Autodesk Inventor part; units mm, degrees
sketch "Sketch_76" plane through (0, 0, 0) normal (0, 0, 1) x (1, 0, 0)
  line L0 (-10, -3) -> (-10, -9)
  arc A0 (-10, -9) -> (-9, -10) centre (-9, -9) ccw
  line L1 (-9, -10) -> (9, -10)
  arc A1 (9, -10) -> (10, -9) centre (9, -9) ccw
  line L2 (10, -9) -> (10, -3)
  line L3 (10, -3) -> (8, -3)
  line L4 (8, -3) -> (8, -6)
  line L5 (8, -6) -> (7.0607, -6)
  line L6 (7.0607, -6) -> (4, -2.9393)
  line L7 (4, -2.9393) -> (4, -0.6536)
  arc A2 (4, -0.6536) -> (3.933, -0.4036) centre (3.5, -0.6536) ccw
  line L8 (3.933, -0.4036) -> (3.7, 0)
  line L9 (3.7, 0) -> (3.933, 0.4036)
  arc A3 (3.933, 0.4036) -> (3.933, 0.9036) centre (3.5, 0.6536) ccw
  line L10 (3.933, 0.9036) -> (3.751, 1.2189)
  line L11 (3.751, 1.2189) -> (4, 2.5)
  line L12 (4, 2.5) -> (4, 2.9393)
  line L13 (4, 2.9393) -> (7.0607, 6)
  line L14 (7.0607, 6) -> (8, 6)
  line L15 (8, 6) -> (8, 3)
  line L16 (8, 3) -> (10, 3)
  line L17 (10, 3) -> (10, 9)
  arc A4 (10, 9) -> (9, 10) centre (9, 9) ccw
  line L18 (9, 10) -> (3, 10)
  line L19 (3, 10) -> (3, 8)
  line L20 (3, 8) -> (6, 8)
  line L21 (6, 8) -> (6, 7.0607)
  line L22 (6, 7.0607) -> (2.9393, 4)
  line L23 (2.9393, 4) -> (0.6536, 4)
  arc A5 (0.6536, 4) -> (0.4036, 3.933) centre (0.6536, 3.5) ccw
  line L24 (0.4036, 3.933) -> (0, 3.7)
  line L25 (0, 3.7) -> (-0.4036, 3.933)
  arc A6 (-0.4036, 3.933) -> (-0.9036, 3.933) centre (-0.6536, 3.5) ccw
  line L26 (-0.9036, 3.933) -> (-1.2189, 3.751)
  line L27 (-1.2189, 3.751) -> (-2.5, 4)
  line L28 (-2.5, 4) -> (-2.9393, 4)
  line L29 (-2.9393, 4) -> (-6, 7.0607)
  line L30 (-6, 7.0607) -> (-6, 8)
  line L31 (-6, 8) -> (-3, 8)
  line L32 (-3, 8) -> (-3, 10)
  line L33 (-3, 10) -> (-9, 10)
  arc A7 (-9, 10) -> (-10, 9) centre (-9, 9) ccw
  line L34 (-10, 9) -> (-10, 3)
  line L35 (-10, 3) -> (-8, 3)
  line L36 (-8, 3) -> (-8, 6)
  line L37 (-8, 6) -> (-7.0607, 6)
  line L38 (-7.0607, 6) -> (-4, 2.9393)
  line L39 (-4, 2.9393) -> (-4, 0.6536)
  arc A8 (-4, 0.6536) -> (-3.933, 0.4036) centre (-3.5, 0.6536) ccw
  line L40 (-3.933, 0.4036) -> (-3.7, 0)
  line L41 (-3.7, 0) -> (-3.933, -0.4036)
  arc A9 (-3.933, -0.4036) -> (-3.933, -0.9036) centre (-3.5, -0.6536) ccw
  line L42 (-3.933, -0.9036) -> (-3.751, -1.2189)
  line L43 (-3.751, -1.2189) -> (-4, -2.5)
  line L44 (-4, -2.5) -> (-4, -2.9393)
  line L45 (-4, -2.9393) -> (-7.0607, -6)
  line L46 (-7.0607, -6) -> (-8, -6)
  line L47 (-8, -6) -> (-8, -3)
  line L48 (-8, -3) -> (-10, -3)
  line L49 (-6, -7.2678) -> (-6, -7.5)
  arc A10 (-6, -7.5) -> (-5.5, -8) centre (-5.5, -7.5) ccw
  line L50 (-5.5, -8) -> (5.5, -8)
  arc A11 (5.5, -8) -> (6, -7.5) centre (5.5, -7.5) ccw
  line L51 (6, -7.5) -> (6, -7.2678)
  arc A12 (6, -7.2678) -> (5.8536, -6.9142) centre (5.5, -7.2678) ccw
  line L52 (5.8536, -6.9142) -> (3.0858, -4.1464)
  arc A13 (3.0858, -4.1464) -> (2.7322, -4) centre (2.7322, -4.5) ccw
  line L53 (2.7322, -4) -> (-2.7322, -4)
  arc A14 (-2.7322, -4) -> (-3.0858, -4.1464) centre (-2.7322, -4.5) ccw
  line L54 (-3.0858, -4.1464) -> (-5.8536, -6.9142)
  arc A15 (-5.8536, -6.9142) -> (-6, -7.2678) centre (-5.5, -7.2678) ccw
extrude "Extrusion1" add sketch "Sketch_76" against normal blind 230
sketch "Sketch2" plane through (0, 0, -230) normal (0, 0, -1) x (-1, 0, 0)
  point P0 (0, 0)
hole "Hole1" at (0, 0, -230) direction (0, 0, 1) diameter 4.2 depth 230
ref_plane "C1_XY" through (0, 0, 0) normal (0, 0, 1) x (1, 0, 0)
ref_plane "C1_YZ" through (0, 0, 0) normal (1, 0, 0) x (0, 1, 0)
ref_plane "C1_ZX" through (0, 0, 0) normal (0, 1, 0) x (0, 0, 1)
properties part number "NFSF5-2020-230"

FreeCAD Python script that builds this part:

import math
import FreeCAD as App
import Part
import Sketcher
Q = App.Units.Quantity

doc = App.newDocument("Part")
body = doc.addObject("PartDesign::Body", "Body")

sketch1 = body.newObject("Sketcher::SketchObject", "Sketch")
sketch1.AttachmentSupport = (doc.getObject("XY_Plane"), [""])
sketch1.MapMode = "FlatFace"
sketch1.addGeometry([
    Part.LineSegment(App.Vector(-8, -3, 0), App.Vector(-10, -3, 0)),
    Part.LineSegment(App.Vector(-10, -3, 0), App.Vector(-10, -9, 0)),
    Part.ArcOfCircle(Part.Circle(App.Vector(-9, -9, 0), App.Vector(0, 0, 1), 1), math.radians(180), math.radians(270)),
    Part.LineSegment(App.Vector(-9, -10, 0), App.Vector(9, -10, 0)),
    Part.ArcOfCircle(Part.Circle(App.Vector(9, -9, 0), App.Vector(0, 0, 1), 1), math.radians(-90), math.radians(0)),
    Part.LineSegment(App.Vector(10, -9, 0), App.Vector(10, -3, 0)),
    Part.LineSegment(App.Vector(10, -3, 0), App.Vector(8, -3, 0)),
    Part.LineSegment(App.Vector(8, -3, 0), App.Vector(8, -6, 0)),
    Part.LineSegment(App.Vector(8, -6, 0), App.Vector(7.06, -6, 0)),
    Part.LineSegment(App.Vector(7.06, -6, 0), App.Vector(4, -2.94, 0)),
    Part.LineSegment(App.Vector(4, -2.94, 0), App.Vector(4, -0.65, 0)),
    Part.ArcOfCircle(Part.Circle(App.Vector(3.5, -0.65, 0), App.Vector(0, 0, 1), 0.5), math.radians(0), math.radians(30)),
    Part.LineSegment(App.Vector(3.93, -0.4, 0), App.Vector(3.7, 0, 0)),
    Part.LineSegment(App.Vector(3.7, 0, 0), App.Vector(3.93, 0.4, 0)),
    Part.ArcOfCircle(Part.Circle(App.Vector(3.5, 0.65, 0), App.Vector(0, 0, 1), 0.5), math.radians(-30), math.radians(30)),
    Part.LineSegment(App.Vector(3.93, 0.9, 0), App.Vector(3.75, 1.22, 0)),
    Part.LineSegment(App.Vector(3.75, 1.22, 0), App.Vector(4, 2.5, 0)),
    Part.LineSegment(App.Vector(4, 2.5, 0), App.Vector(4, 2.94, 0)),
    Part.LineSegment(App.Vector(4, 2.94, 0), App.Vector(7.06, 6, 0)),
    Part.LineSegment(App.Vector(7.06, 6, 0), App.Vector(8, 6, 0)),
    Part.LineSegment(App.Vector(8, 6, 0), App.Vector(8, 3, 0)),
    Part.LineSegment(App.Vector(8, 3, 0), App.Vector(10, 3, 0)),
    Part.LineSegment(App.Vector(10, 3, 0), App.Vector(10, 9, 0)),
    Part.ArcOfCircle(Part.Circle(App.Vector(9, 9, 0), App.Vector(0, 0, 1), 1), math.radians(0), math.radians(90)),
    Part.LineSegment(App.Vector(9, 10, 0), App.Vector(3, 10, 0)),
    Part.LineSegment(App.Vector(3, 10, 0), App.Vector(3, 8, 0)),
    Part.LineSegment(App.Vector(3, 8, 0), App.Vector(6, 8, 0)),
    Part.LineSegment(App.Vector(6, 8, 0), App.Vector(6, 7.06, 0)),
    Part.LineSegment(App.Vector(6, 7.06, 0), App.Vector(2.94, 4, 0)),
    Part.LineSegment(App.Vector(2.94, 4, 0), App.Vector(0.65, 4, 0)),
    Part.ArcOfCircle(Part.Circle(App.Vector(0.65, 3.5, 0), App.Vector(0, 0, 1), 0.5), math.radians(90), math.radians(120)),
    Part.LineSegment(App.Vector(0.4, 3.93, 0), App.Vector(0, 3.7, 0)),
    Part.LineSegment(App.Vector(0, 3.7, 0), App.Vector(-0.4, 3.93, 0)),
    Part.ArcOfCircle(Part.Circle(App.Vector(-0.65, 3.5, 0), App.Vector(0, 0, 1), 0.5), math.radians(60), math.radians(120)),
    Part.LineSegment(App.Vector(-0.9, 3.93, 0), App.Vector(-1.22, 3.75, 0)),
    Part.LineSegment(App.Vector(-1.22, 3.75, 0), App.Vector(-2.5, 4, 0)),
    Part.LineSegment(App.Vector(-2.5, 4, 0), App.Vector(-2.94, 4, 0)),
    Part.LineSegment(App.Vector(-2.94, 4, 0), App.Vector(-6, 7.06, 0)),
    Part.LineSegment(App.Vector(-6, 7.06, 0), App.Vector(-6, 8, 0)),
    Part.LineSegment(App.Vector(-6, 8, 0), App.Vector(-3, 8, 0)),
    Part.LineSegment(App.Vector(-3, 8, 0), App.Vector(-3, 10, 0)),
    Part.LineSegment(App.Vector(-3, 10, 0), App.Vector(-9, 10, 0)),
    Part.ArcOfCircle(Part.Circle(App.Vector(-9, 9, 0), App.Vector(0, 0, 1), 1), math.radians(90), math.radians(180)),
    Part.LineSegment(App.Vector(-10, 9, 0), App.Vector(-10, 3, 0)),
    Part.LineSegment(App.Vector(-10, 3, 0), App.Vector(-8, 3, 0)),
    Part.LineSegment(App.Vector(-8, 3, 0), App.Vector(-8, 6, 0)),
    Part.LineSegment(App.Vector(-8, 6, 0), App.Vector(-7.06, 6, 0)),
    Part.LineSegment(App.Vector(-7.06, 6, 0), App.Vector(-4, 2.94, 0)),
    Part.LineSegment(App.Vector(-4, 2.94, 0), App.Vector(-4, 0.65, 0)),
    Part.ArcOfCircle(Part.Circle(App.Vector(-3.5, 0.65, 0), App.Vector(0, 0, 1), 0.5), math.radians(180), math.radians(210)),
    Part.LineSegment(App.Vector(-3.93, 0.4, 0), App.Vector(-3.7, 0, 0)),
    Part.LineSegment(App.Vector(-3.7, 0, 0), App.Vector(-3.93, -0.4, 0)),
    Part.ArcOfCircle(Part.Circle(App.Vector(-3.5, -0.65, 0), App.Vector(0, 0, 1), 0.5), math.radians(150), math.radians(210)),
    Part.LineSegment(App.Vector(-3.93, -0.9, 0), App.Vector(-3.75, -1.22, 0)),
    Part.LineSegment(App.Vector(-3.75, -1.22, 0), App.Vector(-4, -2.5, 0)),
    Part.LineSegment(App.Vector(-4, -2.5, 0), App.Vector(-4, -2.94, 0)),
    Part.LineSegment(App.Vector(-4, -2.94, 0), App.Vector(-7.06, -6, 0)),
    Part.LineSegment(App.Vector(-7.06, -6, 0), App.Vector(-8, -6, 0)),
    Part.LineSegment(App.Vector(-8, -6, 0), App.Vector(-8, -3, 0)),
    Part.LineSegment(App.Vector(-6, -7.5, 0), App.Vector(-6, -7.27, 0)),
    Part.ArcOfCircle(Part.Circle(App.Vector(-5.5, -7.27, 0), App.Vector(0, 0, 1), 0.5), math.radians(135), math.radians(180)),
    Part.LineSegment(App.Vector(-5.85, -6.91, 0), App.Vector(-3.09, -4.15, 0)),
    Part.ArcOfCircle(Part.Circle(App.Vector(-2.73, -4.5, 0), App.Vector(0, 0, 1), 0.5), math.radians(90), math.radians(135)),
    Part.LineSegment(App.Vector(-2.73, -4, 0), App.Vector(2.73, -4, 0)),
    Part.ArcOfCircle(Part.Circle(App.Vector(2.73, -4.5, 0), App.Vector(0, 0, 1), 0.5), math.radians(45), math.radians(90)),
    Part.LineSegment(App.Vector(3.09, -4.15, 0), App.Vector(5.85, -6.91, 0)),
    Part.ArcOfCircle(Part.Circle(App.Vector(5.5, -7.27, 0), App.Vector(0, 0, 1), 0.5), math.radians(0), math.radians(45)),
    Part.LineSegment(App.Vector(6, -7.27, 0), App.Vector(6, -7.5, 0)),
    Part.ArcOfCircle(Part.Circle(App.Vector(5.5, -7.5, 0), App.Vector(0, 0, 1), 0.5), math.radians(-90), math.radians(0)),
    Part.LineSegment(App.Vector(5.5, -8, 0), App.Vector(-5.5, -8, 0)),
    Part.ArcOfCircle(Part.Circle(App.Vector(-5.5, -7.5, 0), App.Vector(0, 0, 1), 0.5), math.radians(180), math.radians(270)),
], False)
sketch1.addConstraint([
    Sketcher.Constraint("Coincident", 0, 2, 1, 1),
    Sketcher.Constraint("Tangent", 1, 2, 2, 1),
    Sketcher.Constraint("Tangent", 2, 2, 3, 1),
    Sketcher.Constraint("Tangent", 3, 2, 4, 1),
    Sketcher.Constraint("Tangent", 4, 2, 5, 1),
    Sketcher.Constraint("Coincident", 5, 2, 6, 1),
    Sketcher.Constraint("Coincident", 6, 2, 7, 1),
    Sketcher.Constraint("Coincident", 7, 2, 8, 1),
    Sketcher.Constraint("Coincident", 8, 2, 9, 1),
    Sketcher.Constraint("Coincident", 9, 2, 10, 1),
    Sketcher.Constraint("Tangent", 10, 2, 11, 1),
    Sketcher.Constraint("Tangent", 11, 2, 12, 1),
    Sketcher.Constraint("Coincident", 12, 2, 13, 1),
    Sketcher.Constraint("Tangent", 13, 2, 14, 1),
    Sketcher.Constraint("Tangent", 14, 2, 15, 1),
    Sketcher.Constraint("Coincident", 15, 2, 16, 1),
    Sketcher.Constraint("Coincident", 16, 2, 17, 1),
    Sketcher.Constraint("Coincident", 17, 2, 18, 1),
    Sketcher.Constraint("Coincident", 18, 2, 19, 1),
    Sketcher.Constraint("Coincident", 19, 2, 20, 1),
    Sketcher.Constraint("Coincident", 20, 2, 21, 1),
    Sketcher.Constraint("Coincident", 21, 2, 22, 1),
    Sketcher.Constraint("Tangent", 22, 2, 23, 1),
    Sketcher.Constraint("Tangent", 23, 2, 24, 1),
    Sketcher.Constraint("Coincident", 24, 2, 25, 1),
    Sketcher.Constraint("Coincident", 25, 2, 26, 1),
    Sketcher.Constraint("Coincident", 26, 2, 27, 1),
    Sketcher.Constraint("Coincident", 27, 2, 28, 1),
    Sketcher.Constraint("Coincident", 28, 2, 29, 1),
    Sketcher.Constraint("Tangent", 29, 2, 30, 1),
    Sketcher.Constraint("Tangent", 30, 2, 31, 1),
    Sketcher.Constraint("Coincident", 31, 2, 32, 1),
    Sketcher.Constraint("Tangent", 32, 2, 33, 1),
    Sketcher.Constraint("Tangent", 33, 2, 34, 1),
    Sketcher.Constraint("Coincident", 34, 2, 35, 1),
    Sketcher.Constraint("Coincident", 35, 2, 36, 1),
    Sketcher.Constraint("Coincident", 36, 2, 37, 1),
    Sketcher.Constraint("Coincident", 37, 2, 38, 1),
    Sketcher.Constraint("Coincident", 38, 2, 39, 1),
    Sketcher.Constraint("Coincident", 39, 2, 40, 1),
    Sketcher.Constraint("Coincident", 40, 2, 41, 1),
    Sketcher.Constraint("Tangent", 41, 2, 42, 1),
    Sketcher.Constraint("Tangent", 42, 2, 43, 1),
    Sketcher.Constraint("Coincident", 43, 2, 44, 1),
    Sketcher.Constraint("Coincident", 44, 2, 45, 1),
    Sketcher.Constraint("Coincident", 45, 2, 46, 1),
    Sketcher.Constraint("Coincident", 46, 2, 47, 1),
    Sketcher.Constraint("Coincident", 47, 2, 48, 1),
    Sketcher.Constraint("Tangent", 48, 2, 49, 1),
    Sketcher.Constraint("Tangent", 49, 2, 50, 1),
    Sketcher.Constraint("Coincident", 50, 2, 51, 1),
    Sketcher.Constraint("Tangent", 51, 2, 52, 1),
    Sketcher.Constraint("Tangent", 52, 2, 53, 1),
    Sketcher.Constraint("Coincident", 53, 2, 54, 1),
    Sketcher.Constraint("Coincident", 54, 2, 55, 1),
    Sketcher.Constraint("Coincident", 55, 2, 56, 1),
    Sketcher.Constraint("Coincident", 56, 2, 57, 1),
    Sketcher.Constraint("Coincident", 57, 2, 58, 1),
    Sketcher.Constraint("Coincident", 58, 2, 0, 1),
    Sketcher.Constraint("Tangent", 59, 2, 60, 2),
    Sketcher.Constraint("Tangent", 60, 1, 61, 1),
    Sketcher.Constraint("Tangent", 61, 2, 62, 2),
    Sketcher.Constraint("Tangent", 62, 1, 63, 1),
    Sketcher.Constraint("Tangent", 63, 2, 64, 2),
    Sketcher.Constraint("Tangent", 64, 1, 65, 1),
    Sketcher.Constraint("Tangent", 65, 2, 66, 2),
    Sketcher.Constraint("Tangent", 66, 1, 67, 1),
    Sketcher.Constraint("Tangent", 67, 2, 68, 2),
    Sketcher.Constraint("Tangent", 68, 1, 69, 1),
    Sketcher.Constraint("Tangent", 69, 2, 70, 2),
    Sketcher.Constraint("Tangent", 70, 1, 59, 1),
    Sketcher.Constraint("Horizontal", 0),
    Sketcher.Constraint("Vertical", 1),
    Sketcher.Constraint("Horizontal", 3),
    Sketcher.Constraint("Vertical", 5),
    Sketcher.Constraint("Horizontal", 6),
    Sketcher.Constraint("Vertical", 7),
    Sketcher.Constraint("Horizontal", 8),
    Sketcher.Constraint("Vertical", 10),
    Sketcher.Constraint("Vertical", 17),
    Sketcher.Constraint("Horizontal", 19),
    Sketcher.Constraint("Vertical", 20),
    Sketcher.Constraint("Horizontal", 21),
    Sketcher.Constraint("Vertical", 22),
    Sketcher.Constraint("Horizontal", 24),
    Sketcher.Constraint("Vertical", 25),
    Sketcher.Constraint("Horizontal", 26),
    Sketcher.Constraint("Vertical", 27),
    Sketcher.Constraint("Horizontal", 29),
    Sketcher.Constraint("Horizontal", 36),
    Sketcher.Constraint("Vertical", 38),
    Sketcher.Constraint("Horizontal", 39),
    Sketcher.Constraint("Vertical", 40),
    Sketcher.Constraint("Horizontal", 41),
    Sketcher.Constraint("Vertical", 43),
    Sketcher.Constraint("Horizontal", 44),
    Sketcher.Constraint("Vertical", 45),
    Sketcher.Constraint("Horizontal", 46),
    Sketcher.Constraint("Vertical", 48),
    Sketcher.Constraint("Vertical", 55),
    Sketcher.Constraint("Horizontal", 57),
    Sketcher.Constraint("Vertical", 58),
    Sketcher.Constraint("Vertical", 59),
    Sketcher.Constraint("Horizontal", 63),
    Sketcher.Constraint("Vertical", 67),
    Sketcher.Constraint("Horizontal", 69),
    Sketcher.Constraint("Equal", 2, 4),
    Sketcher.Constraint("Equal", 11, 14),
    Sketcher.Constraint("Equal", 4, 23),
    Sketcher.Constraint("Equal", 14, 30),
    Sketcher.Constraint("Equal", 30, 33),
    Sketcher.Constraint("Equal", 23, 42),
    Sketcher.Constraint("Equal", 33, 49),
    Sketcher.Constraint("Equal", 49, 52),
    Sketcher.Constraint("Equal", 52, 60),
    Sketcher.Constraint("Equal", 60, 62),
    Sketcher.Constraint("Equal", 62, 64),
    Sketcher.Constraint("Equal", 64, 66),
    Sketcher.Constraint("Equal", 66, 68),
    Sketcher.Constraint("Equal", 68, 70),
    Sketcher.Constraint("Symmetric", 2, 3, 23, 3, -1, 1),
    Sketcher.Constraint("Symmetric", 4, 3, 42, 3, -1, 1),
    Sketcher.Constraint("Symmetric", 11, 3, 49, 3, -1, 1),
    Sketcher.Constraint("Symmetric", 14, 3, 52, 3, -1, 1),
    Sketcher.Constraint("Symmetric", 6, 2, 44, 2, -1, 1),
    Sketcher.Constraint("Symmetric", 8, 2, 46, 2, -1, 1),
    Sketcher.Constraint("Symmetric", 12, 2, 50, 2, -1, 1),
    Sketcher.Constraint("Symmetric", 15, 2, 53, 2, -1, 1),
    Sketcher.Constraint("Symmetric", 16, 2, 54, 2, -1, 1),
    Sketcher.Constraint("Symmetric", 18, 2, 56, 2, -1, 1),
    Sketcher.Constraint("Symmetric", 20, 2, 58, 2, -1, 1),
    Sketcher.Constraint("Symmetric", 30, 3, 33, 3, -2),
    Sketcher.Constraint("Symmetric", 14, 3, 49, 3, -2),
    Sketcher.Constraint("Symmetric", 60, 3, 66, 3, -2),
    Sketcher.Constraint("Symmetric", 0, 2, 5, 2, -2),
    Sketcher.Constraint("Symmetric", 28, 2, 36, 2, -2),
    Sketcher.Constraint("Symmetric", 27, 2, 37, 2, -2),
    Sketcher.Constraint("Symmetric", 25, 2, 39, 2, -2),
    Sketcher.Constraint("Symmetric", 19, 2, 45, 2, -2),
    Sketcher.Constraint("Symmetric", 17, 2, 47, 2, -2),
    Sketcher.Constraint("PointOnObject", 12, 2, -1),
    Sketcher.Constraint("PointOnObject", 31, 2, -2),
    Sketcher.Constraint("Parallel", 12, 15),
    Sketcher.Constraint("Perpendicular", 9, 18),
    Sketcher.Constraint("Parallel", 18, 28),
    Sketcher.Constraint("Perpendicular", 15, 31),
    Sketcher.Constraint("Parallel", 31, 34),
    Sketcher.Constraint("Perpendicular", 16, 35),
    Sketcher.Constraint("Perpendicular", 28, 37),
    Sketcher.Constraint("Parallel", 37, 47),
    Sketcher.Constraint("Perpendicular", 47, 56),
    Sketcher.Constraint("Parallel", 56, 61),
    Sketcher.Constraint("Perpendicular", 61, 65),
    Sketcher.Constraint("Vertical", 38, 2, 59, 2),
    Sketcher.Constraint("Equal", 41, 1),
    Sketcher.Constraint("Equal", 39, 7),
    Sketcher.Constraint("Equal", 29, 10),
    Sketcher.Constraint("Equal", 36, 17),
    Sketcher.Constraint("Equal", 44, 25),
    Sketcher.Constraint("Equal", 57, 27),
    Sketcher.Constraint("Equal", 18, 28),
    Sketcher.Constraint("Equal", 13, 31),
    Sketcher.Constraint("Radius", 2, Q("1 mm")),
    Sketcher.Constraint("Radius", 11, Q("0.5 mm")),
    Sketcher.Constraint("DistanceX", 0, 2, 0, 1, Q("2 mm")),
    Sketcher.Constraint("DistanceX", 3, 1, 3, 2, Q("18 mm")),
    Sketcher.Constraint("DistanceX", 24, 2, 24, 1, Q("6 mm")),
    Sketcher.Constraint("DistanceX", 26, 1, 26, 2, Q("3 mm")),
    Sketcher.Constraint("Angle", 16, Q("79.001 deg")),
    Sketcher.Constraint("DistanceX", -1, 1, 9, 2, Q("4 mm")),
    Sketcher.Constraint("DistanceY", 62, 1, -1, 1, Q("4 mm")),
    Sketcher.Constraint("DistanceY", 68, 1, -1, 1, Q("8 mm")),
    Sketcher.Constraint("DistanceX", -1, 1, 12, 2, Q("3.7 mm")),
    Sketcher.Constraint("DistanceY", -1, 1, 16, 2, Q("2.5 mm")),
    Sketcher.Constraint("Distance", 12, Q("0.466 mm")),
    Sketcher.Constraint("DistanceX", 8, 2, 8, 1, Q("0.9393 mm")),
    Sketcher.Constraint("DistanceX", 63, 1, 63, 2, Q("5.4644 mm")),
])
pad1 = body.newObject("PartDesign::Pad", "Pad")
pad1.Profile = sketch1
pad1.Length = 230
pad1.Reversed = True

sketch2 = body.newObject("Sketcher::SketchObject", "Sketch001")
sketch2.AttachmentSupport = (doc.getObject("XY_Plane"), [""])
sketch2.MapMode = "FlatFace"
sketch2.AttachmentOffset = App.Placement(App.Vector(0, 0, -230), App.Rotation())
sketch2.addGeometry(Part.Circle(App.Vector(0, 0, 0), App.Vector(0, 0, 1), 2.1), False)
sketch2.addConstraint([
    Sketcher.Constraint("Coincident", 0, 3, -1, 1),
    Sketcher.Constraint("Diameter", 0, Q("4.2 mm")),
])
doc.recompute()
hole = body.newObject("PartDesign::Hole", "Hole")
hole.Profile = sketch2
hole.ThreadType = "None"
hole.Diameter = 4.2
hole.DepthType = "Dimension"
hole.Depth = 230
hole.DrillPoint = "Flat"
hole.Reversed = True

doc.recompute()
